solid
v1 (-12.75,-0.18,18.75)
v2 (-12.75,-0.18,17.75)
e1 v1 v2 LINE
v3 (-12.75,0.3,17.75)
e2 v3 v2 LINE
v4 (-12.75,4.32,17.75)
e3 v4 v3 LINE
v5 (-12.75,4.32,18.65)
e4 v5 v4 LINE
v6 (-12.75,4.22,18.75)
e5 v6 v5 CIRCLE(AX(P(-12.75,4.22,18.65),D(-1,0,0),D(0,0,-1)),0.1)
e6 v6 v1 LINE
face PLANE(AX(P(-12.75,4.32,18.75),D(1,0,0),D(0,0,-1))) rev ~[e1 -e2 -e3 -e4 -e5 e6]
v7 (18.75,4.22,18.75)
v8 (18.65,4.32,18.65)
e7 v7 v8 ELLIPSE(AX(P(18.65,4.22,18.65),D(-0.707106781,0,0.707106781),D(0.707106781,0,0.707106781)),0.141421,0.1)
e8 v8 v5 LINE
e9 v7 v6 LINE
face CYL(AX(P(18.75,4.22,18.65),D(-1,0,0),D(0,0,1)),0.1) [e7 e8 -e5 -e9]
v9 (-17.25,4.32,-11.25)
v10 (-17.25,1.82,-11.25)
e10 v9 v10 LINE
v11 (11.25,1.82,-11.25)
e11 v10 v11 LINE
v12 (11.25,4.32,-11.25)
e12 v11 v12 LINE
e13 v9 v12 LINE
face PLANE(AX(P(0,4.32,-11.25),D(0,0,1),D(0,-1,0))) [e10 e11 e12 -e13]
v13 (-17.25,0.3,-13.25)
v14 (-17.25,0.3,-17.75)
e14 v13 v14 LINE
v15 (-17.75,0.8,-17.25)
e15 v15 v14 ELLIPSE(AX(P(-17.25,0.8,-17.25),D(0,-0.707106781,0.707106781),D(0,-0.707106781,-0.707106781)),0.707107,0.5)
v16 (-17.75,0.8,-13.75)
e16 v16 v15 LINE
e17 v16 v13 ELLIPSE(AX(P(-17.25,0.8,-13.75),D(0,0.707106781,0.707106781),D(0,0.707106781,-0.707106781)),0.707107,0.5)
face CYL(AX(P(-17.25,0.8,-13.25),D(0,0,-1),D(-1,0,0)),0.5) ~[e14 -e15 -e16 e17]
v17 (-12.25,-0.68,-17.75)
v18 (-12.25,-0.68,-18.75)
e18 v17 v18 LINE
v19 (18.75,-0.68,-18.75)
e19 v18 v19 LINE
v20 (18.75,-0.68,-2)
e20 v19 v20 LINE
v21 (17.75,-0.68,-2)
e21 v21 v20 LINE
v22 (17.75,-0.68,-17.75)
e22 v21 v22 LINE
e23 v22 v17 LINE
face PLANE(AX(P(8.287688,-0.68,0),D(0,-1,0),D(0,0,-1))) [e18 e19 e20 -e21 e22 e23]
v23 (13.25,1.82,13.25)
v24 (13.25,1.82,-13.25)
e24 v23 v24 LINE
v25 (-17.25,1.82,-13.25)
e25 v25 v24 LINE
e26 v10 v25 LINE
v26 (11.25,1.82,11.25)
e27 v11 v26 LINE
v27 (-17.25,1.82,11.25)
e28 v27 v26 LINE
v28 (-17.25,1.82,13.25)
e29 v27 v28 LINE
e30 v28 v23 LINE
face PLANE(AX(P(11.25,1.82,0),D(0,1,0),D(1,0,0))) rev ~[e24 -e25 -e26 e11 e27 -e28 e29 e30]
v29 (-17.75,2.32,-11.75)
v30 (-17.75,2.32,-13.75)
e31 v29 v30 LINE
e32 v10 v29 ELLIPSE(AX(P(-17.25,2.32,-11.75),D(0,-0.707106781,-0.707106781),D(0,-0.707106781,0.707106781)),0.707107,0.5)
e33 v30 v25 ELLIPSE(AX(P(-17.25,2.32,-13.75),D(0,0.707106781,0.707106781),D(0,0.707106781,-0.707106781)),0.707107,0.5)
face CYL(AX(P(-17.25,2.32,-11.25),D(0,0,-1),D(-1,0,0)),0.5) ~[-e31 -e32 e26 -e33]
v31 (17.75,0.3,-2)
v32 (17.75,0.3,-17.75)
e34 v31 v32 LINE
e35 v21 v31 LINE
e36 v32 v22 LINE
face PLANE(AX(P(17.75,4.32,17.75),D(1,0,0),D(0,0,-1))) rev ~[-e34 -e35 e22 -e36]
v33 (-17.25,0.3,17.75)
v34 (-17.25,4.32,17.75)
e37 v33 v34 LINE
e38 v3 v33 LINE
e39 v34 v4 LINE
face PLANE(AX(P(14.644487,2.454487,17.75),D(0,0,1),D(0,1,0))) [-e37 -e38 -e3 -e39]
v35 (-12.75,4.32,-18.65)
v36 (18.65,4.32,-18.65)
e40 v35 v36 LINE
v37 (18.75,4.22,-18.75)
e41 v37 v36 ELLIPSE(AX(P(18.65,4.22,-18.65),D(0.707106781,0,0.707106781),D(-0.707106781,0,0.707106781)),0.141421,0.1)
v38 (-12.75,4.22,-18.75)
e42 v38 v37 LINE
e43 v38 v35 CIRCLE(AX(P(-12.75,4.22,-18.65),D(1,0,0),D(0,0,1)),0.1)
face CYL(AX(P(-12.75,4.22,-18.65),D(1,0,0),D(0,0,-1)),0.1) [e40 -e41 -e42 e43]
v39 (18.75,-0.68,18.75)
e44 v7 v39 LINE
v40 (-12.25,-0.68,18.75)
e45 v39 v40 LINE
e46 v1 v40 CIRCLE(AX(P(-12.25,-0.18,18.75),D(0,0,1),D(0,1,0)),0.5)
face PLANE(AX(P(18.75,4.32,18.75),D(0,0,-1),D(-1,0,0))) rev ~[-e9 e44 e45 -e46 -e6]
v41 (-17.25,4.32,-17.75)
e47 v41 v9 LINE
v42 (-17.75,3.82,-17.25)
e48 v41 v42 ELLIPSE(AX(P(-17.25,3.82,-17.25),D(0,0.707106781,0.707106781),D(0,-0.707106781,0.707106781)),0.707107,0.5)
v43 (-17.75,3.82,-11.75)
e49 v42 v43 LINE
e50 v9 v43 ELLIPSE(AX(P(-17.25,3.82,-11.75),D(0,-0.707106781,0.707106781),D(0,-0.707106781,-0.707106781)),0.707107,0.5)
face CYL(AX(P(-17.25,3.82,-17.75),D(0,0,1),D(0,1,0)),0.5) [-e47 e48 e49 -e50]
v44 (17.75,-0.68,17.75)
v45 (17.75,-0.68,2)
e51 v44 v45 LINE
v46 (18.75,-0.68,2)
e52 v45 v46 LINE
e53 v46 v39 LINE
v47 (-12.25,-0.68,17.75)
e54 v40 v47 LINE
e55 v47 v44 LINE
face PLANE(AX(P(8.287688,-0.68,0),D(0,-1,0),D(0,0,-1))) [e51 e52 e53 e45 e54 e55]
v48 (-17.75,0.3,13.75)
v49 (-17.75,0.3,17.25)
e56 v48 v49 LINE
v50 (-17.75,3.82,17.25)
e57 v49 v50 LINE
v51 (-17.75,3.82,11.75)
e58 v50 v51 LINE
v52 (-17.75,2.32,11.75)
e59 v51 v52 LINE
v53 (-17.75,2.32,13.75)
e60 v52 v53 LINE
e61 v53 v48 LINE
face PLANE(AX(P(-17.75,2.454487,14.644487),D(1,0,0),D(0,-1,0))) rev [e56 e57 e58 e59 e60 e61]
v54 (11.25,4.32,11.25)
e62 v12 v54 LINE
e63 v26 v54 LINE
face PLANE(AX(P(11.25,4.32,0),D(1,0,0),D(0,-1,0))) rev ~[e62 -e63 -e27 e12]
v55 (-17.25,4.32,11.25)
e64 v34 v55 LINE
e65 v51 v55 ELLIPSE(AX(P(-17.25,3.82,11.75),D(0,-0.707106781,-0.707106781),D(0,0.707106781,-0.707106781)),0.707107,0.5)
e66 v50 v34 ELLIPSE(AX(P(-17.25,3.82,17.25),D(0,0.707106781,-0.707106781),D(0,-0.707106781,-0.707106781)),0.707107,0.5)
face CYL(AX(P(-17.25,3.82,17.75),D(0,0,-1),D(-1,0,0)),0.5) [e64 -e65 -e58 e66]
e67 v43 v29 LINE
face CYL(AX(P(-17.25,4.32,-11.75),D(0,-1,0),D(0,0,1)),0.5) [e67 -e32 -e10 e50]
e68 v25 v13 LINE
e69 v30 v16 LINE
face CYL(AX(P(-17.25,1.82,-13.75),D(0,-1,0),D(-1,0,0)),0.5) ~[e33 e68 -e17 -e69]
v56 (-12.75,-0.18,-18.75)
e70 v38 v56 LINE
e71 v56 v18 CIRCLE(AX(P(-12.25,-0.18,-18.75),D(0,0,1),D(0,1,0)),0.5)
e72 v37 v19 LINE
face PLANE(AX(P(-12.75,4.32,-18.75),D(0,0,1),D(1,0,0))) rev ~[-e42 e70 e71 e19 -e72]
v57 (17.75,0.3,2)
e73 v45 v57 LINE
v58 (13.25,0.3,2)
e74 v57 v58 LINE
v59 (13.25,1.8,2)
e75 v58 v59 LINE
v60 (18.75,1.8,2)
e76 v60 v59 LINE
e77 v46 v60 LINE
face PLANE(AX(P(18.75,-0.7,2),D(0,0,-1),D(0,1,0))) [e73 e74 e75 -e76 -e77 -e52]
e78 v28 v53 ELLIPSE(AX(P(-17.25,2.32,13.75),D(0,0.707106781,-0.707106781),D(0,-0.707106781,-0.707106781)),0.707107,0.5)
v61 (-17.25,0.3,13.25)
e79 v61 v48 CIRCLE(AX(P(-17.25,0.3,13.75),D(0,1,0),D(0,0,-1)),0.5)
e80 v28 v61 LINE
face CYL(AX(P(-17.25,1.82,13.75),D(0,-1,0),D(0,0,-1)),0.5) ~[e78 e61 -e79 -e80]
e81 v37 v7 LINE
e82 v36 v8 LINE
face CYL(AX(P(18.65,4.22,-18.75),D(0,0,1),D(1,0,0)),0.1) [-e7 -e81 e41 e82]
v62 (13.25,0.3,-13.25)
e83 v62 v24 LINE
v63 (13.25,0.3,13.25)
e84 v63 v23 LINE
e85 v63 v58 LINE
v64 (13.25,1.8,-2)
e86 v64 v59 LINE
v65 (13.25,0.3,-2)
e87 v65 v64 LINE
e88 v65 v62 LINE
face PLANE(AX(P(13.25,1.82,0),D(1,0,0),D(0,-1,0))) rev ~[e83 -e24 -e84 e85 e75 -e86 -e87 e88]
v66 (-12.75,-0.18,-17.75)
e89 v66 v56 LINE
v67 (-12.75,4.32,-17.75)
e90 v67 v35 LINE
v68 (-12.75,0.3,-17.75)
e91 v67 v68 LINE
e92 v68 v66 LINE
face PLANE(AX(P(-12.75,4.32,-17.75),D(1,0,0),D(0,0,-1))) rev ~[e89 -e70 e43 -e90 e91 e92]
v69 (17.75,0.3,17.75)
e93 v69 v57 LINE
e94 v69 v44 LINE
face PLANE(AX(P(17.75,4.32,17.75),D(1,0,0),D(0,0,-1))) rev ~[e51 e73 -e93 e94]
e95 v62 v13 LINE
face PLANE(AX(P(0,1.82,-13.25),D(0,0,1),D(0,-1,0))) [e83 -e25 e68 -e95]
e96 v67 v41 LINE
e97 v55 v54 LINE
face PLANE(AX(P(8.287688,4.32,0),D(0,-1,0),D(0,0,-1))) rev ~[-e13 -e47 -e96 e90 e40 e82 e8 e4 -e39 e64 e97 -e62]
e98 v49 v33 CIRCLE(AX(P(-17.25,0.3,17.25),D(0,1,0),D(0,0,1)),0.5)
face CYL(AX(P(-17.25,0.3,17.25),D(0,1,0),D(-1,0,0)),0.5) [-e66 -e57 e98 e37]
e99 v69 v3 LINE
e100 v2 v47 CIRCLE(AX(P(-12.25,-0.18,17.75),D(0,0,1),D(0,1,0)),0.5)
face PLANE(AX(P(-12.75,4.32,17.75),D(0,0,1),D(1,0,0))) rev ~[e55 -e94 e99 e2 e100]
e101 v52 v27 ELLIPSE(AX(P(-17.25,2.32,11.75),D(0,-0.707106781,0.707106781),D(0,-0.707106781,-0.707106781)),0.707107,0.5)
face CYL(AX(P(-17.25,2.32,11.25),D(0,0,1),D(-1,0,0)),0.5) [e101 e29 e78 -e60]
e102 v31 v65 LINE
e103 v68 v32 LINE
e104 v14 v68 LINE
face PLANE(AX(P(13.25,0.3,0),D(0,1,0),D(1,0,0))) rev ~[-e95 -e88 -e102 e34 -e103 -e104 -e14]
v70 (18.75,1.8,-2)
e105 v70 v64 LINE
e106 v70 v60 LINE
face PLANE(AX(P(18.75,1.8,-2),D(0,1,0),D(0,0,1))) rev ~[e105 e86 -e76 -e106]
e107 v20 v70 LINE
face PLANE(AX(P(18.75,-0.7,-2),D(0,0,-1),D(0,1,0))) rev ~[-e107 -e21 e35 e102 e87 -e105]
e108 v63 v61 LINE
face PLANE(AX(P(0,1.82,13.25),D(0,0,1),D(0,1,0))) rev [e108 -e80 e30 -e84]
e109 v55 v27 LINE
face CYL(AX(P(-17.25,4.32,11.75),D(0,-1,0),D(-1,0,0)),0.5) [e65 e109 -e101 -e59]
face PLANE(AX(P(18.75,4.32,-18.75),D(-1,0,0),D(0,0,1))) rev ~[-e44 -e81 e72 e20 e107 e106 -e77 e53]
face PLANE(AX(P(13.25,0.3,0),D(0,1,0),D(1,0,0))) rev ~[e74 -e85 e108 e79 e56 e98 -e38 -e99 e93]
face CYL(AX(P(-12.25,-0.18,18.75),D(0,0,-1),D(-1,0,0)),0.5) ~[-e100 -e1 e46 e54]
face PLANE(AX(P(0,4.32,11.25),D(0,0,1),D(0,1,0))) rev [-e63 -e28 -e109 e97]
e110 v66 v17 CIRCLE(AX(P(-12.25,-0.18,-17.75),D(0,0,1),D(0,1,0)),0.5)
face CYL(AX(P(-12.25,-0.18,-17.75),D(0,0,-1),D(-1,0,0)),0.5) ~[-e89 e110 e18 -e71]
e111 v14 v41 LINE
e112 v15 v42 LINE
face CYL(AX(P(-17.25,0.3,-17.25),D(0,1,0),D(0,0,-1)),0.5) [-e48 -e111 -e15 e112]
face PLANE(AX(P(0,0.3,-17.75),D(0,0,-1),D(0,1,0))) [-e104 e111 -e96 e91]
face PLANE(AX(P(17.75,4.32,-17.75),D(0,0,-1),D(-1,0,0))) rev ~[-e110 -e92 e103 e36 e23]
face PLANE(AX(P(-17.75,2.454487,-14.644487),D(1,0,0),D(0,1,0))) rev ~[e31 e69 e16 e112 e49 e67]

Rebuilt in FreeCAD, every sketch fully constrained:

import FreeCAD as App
import Part
import Sketcher


def edges_at(feature, points):
    """Names of the edges that pass closest to the given points."""
    edges = feature.Shape.Edges
    near = lambda p: min(range(len(edges)), key=lambda i: edges[i].distToShape(Part.Vertex(*p))[0])
    return sorted({f"Edge{near(p) + 1}" for p in points})

doc = App.newDocument("Part")
body = doc.addObject("PartDesign::Body", "Body")

# Sketch on YZ plane
sketch1 = body.newObject("Sketcher::SketchObject", "Sketch")
sketch1.AttachmentSupport = (doc.getObject("YZ_Plane"), [""])
sketch1.MapMode = "FlatFace"
sketch1.addGeometry(Part.LineSegment(App.Vector(0, -17.8, 0), App.Vector(4, -17.8, 0)), False)
sketch1.addGeometry(Part.LineSegment(App.Vector(4, -17.8, 0), App.Vector(4, -11.2, 0)), False)
sketch1.addGeometry(Part.LineSegment(App.Vector(4, -11.2, 0), App.Vector(1.5, -11.2, 0)), False)
sketch1.addGeometry(Part.LineSegment(App.Vector(1.5, -11.2, 0), App.Vector(1.5, -13.2, 0)), False)
sketch1.addGeometry(Part.LineSegment(App.Vector(1.5, -13.2, 0), App.Vector(0, -13.2, 0)), False)
sketch1.addGeometry(Part.LineSegment(App.Vector(0, -13.2, 0), App.Vector(0, -17.8, 0)), False)
sketch1.addConstraint(Sketcher.Constraint("Coincident", 0, 2, 1, 1))
sketch1.addConstraint(Sketcher.Constraint("Coincident", 1, 2, 2, 1))
sketch1.addConstraint(Sketcher.Constraint("Coincident", 2, 2, 3, 1))
sketch1.addConstraint(Sketcher.Constraint("Coincident", 3, 2, 4, 1))
sketch1.addConstraint(Sketcher.Constraint("Coincident", 4, 2, 5, 1))
sketch1.addConstraint(Sketcher.Constraint("Coincident", 5, 2, 0, 1))
sketch1.addConstraint(Sketcher.Constraint("Horizontal", 0))
sketch1.addConstraint(Sketcher.Constraint("Vertical", 1))
sketch1.addConstraint(Sketcher.Constraint("Horizontal", 2))
sketch1.addConstraint(Sketcher.Constraint("Vertical", 3))
sketch1.addConstraint(Sketcher.Constraint("Horizontal", 4))
sketch1.addConstraint(Sketcher.Constraint("Vertical", 5))
sketch1.addConstraint(Sketcher.Constraint("PointOnObject", 4, 2, -2))
sketch1.addConstraint(Sketcher.Constraint("DistanceY", 3, 2, 3, 1, 2.0))
sketch1.addConstraint(Sketcher.Constraint("DistanceX", 2, 2, 2, 1, 2.5))
sketch1.addConstraint(Sketcher.Constraint("DistanceY", 1, 1, 1, 2, 6.5))
sketch1.addConstraint(Sketcher.Constraint("DistanceX", 0, 1, 0, 2, 4.02))
sketch1.addConstraint(Sketcher.Constraint("DistanceY", 0, 2, -1, 1, 17.75))
pad1 = body.newObject("PartDesign::Pad", "Pad")
pad1.Profile = sketch1
pad1.Type = "TwoLengths"
pad1.Length = 17.75
pad1.Length2 = 17.75
doc.recompute()

polarpattern = body.newObject("PartDesign::PolarPattern", "PolarPattern")
polarpattern.Originals = [pad1]
polarpattern.Axis = (doc.getObject("Y_Axis"), [""])
polarpattern.Angle = 270
polarpattern.Occurrences = 2
body.Tip = polarpattern
doc.recompute()

mirrored = body.newObject("PartDesign::Mirrored", "Mirrored")
mirrored.Originals = [pad1]
mirrored.MirrorPlane = (doc.getObject("XY_Plane"), [""])
body.Tip = mirrored
doc.recompute()

fillet = body.newObject("PartDesign::Fillet", "Fillet")
fillet.Base = (mirrored, edges_at(mirrored, [
    (-17.75, 4.02, 14.5),
    (-17.75, 2.77, 11.25),
    (-17.75, 0.76, 13.25),
    (-17.75, 1.52, 12.25),
    (-17.75, 2.01, 17.75),
]))
fillet.Radius = 0.5

# Sketch on XZ plane
sketch2 = body.newObject("Sketcher::SketchObject", "Sketch001")
sketch2.AttachmentSupport = (doc.getObject("XZ_Plane"), [""])
sketch2.MapMode = "FlatFace"
sketch2.AttachmentOffset = App.Placement(App.Vector(0, 0, -4.02), App.Rotation())
sketch2.addGeometry(Part.LineSegment(App.Vector(18.8, 18.8, 0), App.Vector(18.8, -18.8, 0)), False)
sketch2.addGeometry(Part.LineSegment(App.Vector(18.8, -18.8, 0), App.Vector(-12.8, -18.8, 0)), False)
sketch2.addGeometry(Part.LineSegment(App.Vector(-12.8, -18.8, 0), App.Vector(-12.8, -17.8, 0)), False)
sketch2.addGeometry(Part.LineSegment(App.Vector(-12.8, -17.8, 0), App.Vector(17.8, -17.8, 0)), False)
sketch2.addGeometry(Part.LineSegment(App.Vector(17.8, -17.8, 0), App.Vector(17.8, 17.8, 0)), False)
sketch2.addGeometry(Part.LineSegment(App.Vector(17.8, 17.8, 0), App.Vector(-12.8, 17.8, 0)), False)
sketch2.addGeometry(Part.LineSegment(App.Vector(-12.8, 17.8, 0), App.Vector(-12.8, 18.8, 0)), False)
sketch2.addGeometry(Part.LineSegment(App.Vector(-12.8, 18.8, 0), App.Vector(18.8, 18.8, 0)), False)
sketch2.addConstraint(Sketcher.Constraint("Coincident", 0, 2, 1, 1))
sketch2.addConstraint(Sketcher.Constraint("Coincident", 1, 2, 2, 1))
sketch2.addConstraint(Sketcher.Constraint("Coincident", 2, 2, 3, 1))
sketch2.addConstraint(Sketcher.Constraint("Coincident", 3, 2, 4, 1))
sketch2.addConstraint(Sketcher.Constraint("Coincident", 4, 2, 5, 1))
sketch2.addConstraint(Sketcher.Constraint("Coincident", 5, 2, 6, 1))
sketch2.addConstraint(Sketcher.Constraint("Coincident", 6, 2, 7, 1))
sketch2.addConstraint(Sketcher.Constraint("Coincident", 7, 2, 0, 1))
sketch2.addConstraint(Sketcher.Constraint("Vertical", 0))
sketch2.addConstraint(Sketcher.Constraint("Horizontal", 1))
sketch2.addConstraint(Sketcher.Constraint("Vertical", 2))
sketch2.addConstraint(Sketcher.Constraint("Horizontal", 3))
sketch2.addConstraint(Sketcher.Constraint("Vertical", 4))
sketch2.addConstraint(Sketcher.Constraint("Horizontal", 5))
sketch2.addConstraint(Sketcher.Constraint("Vertical", 6))
sketch2.addConstraint(Sketcher.Constraint("Horizontal", 7))
sketch2.addConstraint(Sketcher.Constraint("Symmetric", 2, 2, 5, 2, -1))
sketch2.addConstraint(Sketcher.Constraint("Equal", 2, 6))
sketch2.addConstraint(Sketcher.Constraint("DistanceY", 2, 1, 2, 2, 1.0))
sketch2.addConstraint(Sketcher.Constraint("DistanceX", 1, 2, 1, 1, 31.5))
sketch2.addConstraint(Sketcher.Constraint("DistanceX", 3, 1, 3, 2, 30.5))
sketch2.addConstraint(Sketcher.Constraint("DistanceY", 0, 2, 0, 1, 37.5))
sketch2.addConstraint(Sketcher.Constraint("DistanceX", -1, 1, 0, 2, 18.75))
pad2 = body.newObject("PartDesign::Pad", "Pad001")
pad2.Profile = sketch2
pad2.Length = 5
doc.recompute()

fillet2 = body.newObject("PartDesign::Fillet", "Fillet001")
fillet2.Base = (pad2, edges_at(pad2, [(18.75, 4.02, 0), (3, 4.02, -18.75), (3, 4.02, 18.75)]))
fillet2.Radius = 0.1
doc.recompute()

fillet3 = body.newObject("PartDesign::Fillet", "Fillet002")
fillet3.Base = (fillet2, edges_at(fillet2, [
    (-17.75, 2.77, -11.25),
    (-17.75, 1.52, -12.25),
    (-17.75, 0, -15.5),
    (-17.75, 0.76, -13.25),
    (-17.75, 4.02, -14.5),
    (-17.75, 2.01, -17.75),
]))
fillet3.Radius = 0.5
doc.recompute()

fillet4 = body.newObject("PartDesign::Fillet", "Fillet003")
fillet4.Base = (fillet3, edges_at(fillet3, [(-12.75, -0.98, 18.25), (-12.75, -0.98, -18.25)]))
fillet4.Radius = 0.5

# Sketch on YZ plane
sketch3 = body.newObject("Sketcher::SketchObject", "Sketch002")
sketch3.AttachmentSupport = (doc.getObject("YZ_Plane"), [""])
sketch3.MapMode = "FlatFace"
sketch3.AttachmentOffset = App.Placement(App.Vector(0, 0, 18.75), App.Rotation())
sketch3.addGeometry(Part.LineSegment(App.Vector(-1, 2, 0), App.Vector(-1, -2, 0)), False)
sketch3.addGeometry(Part.LineSegment(App.Vector(-1, -2, 0), App.Vector(1.5, -2, 0)), False)
sketch3.addGeometry(Part.LineSegment(App.Vector(1.5, -2, 0), App.Vector(1.5, 2, 0)), False)
sketch3.addGeometry(Part.LineSegment(App.Vector(1.5, 2, 0), App.Vector(-1, 2, 0)), False)
sketch3.addConstraint(Sketcher.Constraint("Coincident", 0, 2, 1, 1))
sketch3.addConstraint(Sketcher.Constraint("Coincident", 1, 2, 2, 1))
sketch3.addConstraint(Sketcher.Constraint("Coincident", 2, 2, 3, 1))
sketch3.addConstraint(Sketcher.Constraint("Coincident", 3, 2, 0, 1))
sketch3.addConstraint(Sketcher.Constraint("Vertical", 0))
sketch3.addConstraint(Sketcher.Constraint("Horizontal", 1))
sketch3.addConstraint(Sketcher.Constraint("Vertical", 2))
sketch3.addConstraint(Sketcher.Constraint("Horizontal", 3))
sketch3.addConstraint(Sketcher.Constraint("DistanceY", 0, 2, 0, 1, 4.0))
sketch3.addConstraint(Sketcher.Constraint("DistanceX", 1, 1, 1, 2, 2.5))
sketch3.addConstraint(Sketcher.Constraint("DistanceX", 0, 2, -1, 1, 1.0))
sketch3.addConstraint(Sketcher.Constraint("DistanceY", 0, 2, -1, 1, 2.0))
pocket1 = body.newObject("PartDesign::Pocket", "Pocket")
pocket1.Profile = sketch3
pocket1.Type = "ThroughAll"
body2 = doc.addObject("PartDesign::Body", "Body001")
doc.recompute()

body.Placement = App.Placement(App.Vector(0, 0.3, 0), App.Rotation(App.Vector(0, 0, 1), 0))
boolean = body2.newObject("PartDesign::Boolean", "Boolean")
boolean.Type = "Fuse"
boolean.addObjects([body])

doc.recompute()
